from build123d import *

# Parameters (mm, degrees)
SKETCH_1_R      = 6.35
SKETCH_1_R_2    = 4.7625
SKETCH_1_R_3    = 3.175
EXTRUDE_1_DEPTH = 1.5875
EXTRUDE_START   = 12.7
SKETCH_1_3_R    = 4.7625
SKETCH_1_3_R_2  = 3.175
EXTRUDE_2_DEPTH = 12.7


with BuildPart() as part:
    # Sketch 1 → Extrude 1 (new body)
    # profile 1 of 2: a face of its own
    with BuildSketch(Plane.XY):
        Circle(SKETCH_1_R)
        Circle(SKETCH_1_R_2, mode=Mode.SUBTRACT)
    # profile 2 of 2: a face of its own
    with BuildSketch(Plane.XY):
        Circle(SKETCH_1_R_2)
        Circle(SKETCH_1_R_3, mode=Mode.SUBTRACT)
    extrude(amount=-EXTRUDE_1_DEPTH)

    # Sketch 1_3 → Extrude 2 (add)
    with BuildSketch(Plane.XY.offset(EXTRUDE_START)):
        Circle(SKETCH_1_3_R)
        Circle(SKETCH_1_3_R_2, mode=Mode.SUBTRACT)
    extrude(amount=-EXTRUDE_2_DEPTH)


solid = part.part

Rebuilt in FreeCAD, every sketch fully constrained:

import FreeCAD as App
import Part
import Sketcher

V = App.Vector
Q = App.Units.Quantity

doc = App.newDocument("Part")
body = doc.addObject("PartDesign::Body", "Body")

# Sketch on XY plane
sketch1 = body.newObject("Sketcher::SketchObject", "Sketch")
sketch1.AttachmentSupport = (doc.getObject("XY_Plane"), [""])
sketch1.MapMode = "FlatFace"
sketch1.addGeometry([
    Part.Circle(V(0, 0, 0), V(0, 0, 1), 6.3),
    Part.Circle(V(0, 0, 0), V(0, 0, 1), 3.2),
], False)
sketch1.addConstraint([
    Sketcher.Constraint("Coincident", 0, 3, -1, 1),
    Sketcher.Constraint("Coincident", 1, 3, -1, 1),
    Sketcher.Constraint("Diameter", 0, Q("0.5 in")),
    Sketcher.Constraint("Diameter", 1, Q("0.25 in")),
])
pad1 = body.newObject("PartDesign::Pad", "Pad")
pad1.Profile = sketch1
pad1.Length = Q("0.0625 in")
pad1.Reversed = True

# Sketch on XY plane
sketch2 = body.newObject("Sketcher::SketchObject", "Sketch001")
sketch2.AttachmentSupport = (doc.getObject("XY_Plane"), [""])
sketch2.MapMode = "FlatFace"
sketch2.AttachmentOffset = App.Placement(V(0, 0, 0.5 * 25.4), App.Rotation())
sketch2.addGeometry([
    Part.Circle(V(0, 0, 0), V(0, 0, 1), 4.8),
    Part.Circle(V(0, 0, 0), V(0, 0, 1), 3.2),
], False)
sketch2.addConstraint([
    Sketcher.Constraint("Coincident", 0, 3, -1, 1),
    Sketcher.Constraint("Coincident", 1, 3, -1, 1),
    Sketcher.Constraint("Diameter", 1, Q("0.25 in")),
    Sketcher.Constraint("Diameter", 0, Q("0.375 in")),
])
pad2 = body.newObject("PartDesign::Pad", "Pad001")
pad2.Profile = sketch2
pad2.Length = Q("0.5 in")
pad2.Reversed = True

doc.recompute()
